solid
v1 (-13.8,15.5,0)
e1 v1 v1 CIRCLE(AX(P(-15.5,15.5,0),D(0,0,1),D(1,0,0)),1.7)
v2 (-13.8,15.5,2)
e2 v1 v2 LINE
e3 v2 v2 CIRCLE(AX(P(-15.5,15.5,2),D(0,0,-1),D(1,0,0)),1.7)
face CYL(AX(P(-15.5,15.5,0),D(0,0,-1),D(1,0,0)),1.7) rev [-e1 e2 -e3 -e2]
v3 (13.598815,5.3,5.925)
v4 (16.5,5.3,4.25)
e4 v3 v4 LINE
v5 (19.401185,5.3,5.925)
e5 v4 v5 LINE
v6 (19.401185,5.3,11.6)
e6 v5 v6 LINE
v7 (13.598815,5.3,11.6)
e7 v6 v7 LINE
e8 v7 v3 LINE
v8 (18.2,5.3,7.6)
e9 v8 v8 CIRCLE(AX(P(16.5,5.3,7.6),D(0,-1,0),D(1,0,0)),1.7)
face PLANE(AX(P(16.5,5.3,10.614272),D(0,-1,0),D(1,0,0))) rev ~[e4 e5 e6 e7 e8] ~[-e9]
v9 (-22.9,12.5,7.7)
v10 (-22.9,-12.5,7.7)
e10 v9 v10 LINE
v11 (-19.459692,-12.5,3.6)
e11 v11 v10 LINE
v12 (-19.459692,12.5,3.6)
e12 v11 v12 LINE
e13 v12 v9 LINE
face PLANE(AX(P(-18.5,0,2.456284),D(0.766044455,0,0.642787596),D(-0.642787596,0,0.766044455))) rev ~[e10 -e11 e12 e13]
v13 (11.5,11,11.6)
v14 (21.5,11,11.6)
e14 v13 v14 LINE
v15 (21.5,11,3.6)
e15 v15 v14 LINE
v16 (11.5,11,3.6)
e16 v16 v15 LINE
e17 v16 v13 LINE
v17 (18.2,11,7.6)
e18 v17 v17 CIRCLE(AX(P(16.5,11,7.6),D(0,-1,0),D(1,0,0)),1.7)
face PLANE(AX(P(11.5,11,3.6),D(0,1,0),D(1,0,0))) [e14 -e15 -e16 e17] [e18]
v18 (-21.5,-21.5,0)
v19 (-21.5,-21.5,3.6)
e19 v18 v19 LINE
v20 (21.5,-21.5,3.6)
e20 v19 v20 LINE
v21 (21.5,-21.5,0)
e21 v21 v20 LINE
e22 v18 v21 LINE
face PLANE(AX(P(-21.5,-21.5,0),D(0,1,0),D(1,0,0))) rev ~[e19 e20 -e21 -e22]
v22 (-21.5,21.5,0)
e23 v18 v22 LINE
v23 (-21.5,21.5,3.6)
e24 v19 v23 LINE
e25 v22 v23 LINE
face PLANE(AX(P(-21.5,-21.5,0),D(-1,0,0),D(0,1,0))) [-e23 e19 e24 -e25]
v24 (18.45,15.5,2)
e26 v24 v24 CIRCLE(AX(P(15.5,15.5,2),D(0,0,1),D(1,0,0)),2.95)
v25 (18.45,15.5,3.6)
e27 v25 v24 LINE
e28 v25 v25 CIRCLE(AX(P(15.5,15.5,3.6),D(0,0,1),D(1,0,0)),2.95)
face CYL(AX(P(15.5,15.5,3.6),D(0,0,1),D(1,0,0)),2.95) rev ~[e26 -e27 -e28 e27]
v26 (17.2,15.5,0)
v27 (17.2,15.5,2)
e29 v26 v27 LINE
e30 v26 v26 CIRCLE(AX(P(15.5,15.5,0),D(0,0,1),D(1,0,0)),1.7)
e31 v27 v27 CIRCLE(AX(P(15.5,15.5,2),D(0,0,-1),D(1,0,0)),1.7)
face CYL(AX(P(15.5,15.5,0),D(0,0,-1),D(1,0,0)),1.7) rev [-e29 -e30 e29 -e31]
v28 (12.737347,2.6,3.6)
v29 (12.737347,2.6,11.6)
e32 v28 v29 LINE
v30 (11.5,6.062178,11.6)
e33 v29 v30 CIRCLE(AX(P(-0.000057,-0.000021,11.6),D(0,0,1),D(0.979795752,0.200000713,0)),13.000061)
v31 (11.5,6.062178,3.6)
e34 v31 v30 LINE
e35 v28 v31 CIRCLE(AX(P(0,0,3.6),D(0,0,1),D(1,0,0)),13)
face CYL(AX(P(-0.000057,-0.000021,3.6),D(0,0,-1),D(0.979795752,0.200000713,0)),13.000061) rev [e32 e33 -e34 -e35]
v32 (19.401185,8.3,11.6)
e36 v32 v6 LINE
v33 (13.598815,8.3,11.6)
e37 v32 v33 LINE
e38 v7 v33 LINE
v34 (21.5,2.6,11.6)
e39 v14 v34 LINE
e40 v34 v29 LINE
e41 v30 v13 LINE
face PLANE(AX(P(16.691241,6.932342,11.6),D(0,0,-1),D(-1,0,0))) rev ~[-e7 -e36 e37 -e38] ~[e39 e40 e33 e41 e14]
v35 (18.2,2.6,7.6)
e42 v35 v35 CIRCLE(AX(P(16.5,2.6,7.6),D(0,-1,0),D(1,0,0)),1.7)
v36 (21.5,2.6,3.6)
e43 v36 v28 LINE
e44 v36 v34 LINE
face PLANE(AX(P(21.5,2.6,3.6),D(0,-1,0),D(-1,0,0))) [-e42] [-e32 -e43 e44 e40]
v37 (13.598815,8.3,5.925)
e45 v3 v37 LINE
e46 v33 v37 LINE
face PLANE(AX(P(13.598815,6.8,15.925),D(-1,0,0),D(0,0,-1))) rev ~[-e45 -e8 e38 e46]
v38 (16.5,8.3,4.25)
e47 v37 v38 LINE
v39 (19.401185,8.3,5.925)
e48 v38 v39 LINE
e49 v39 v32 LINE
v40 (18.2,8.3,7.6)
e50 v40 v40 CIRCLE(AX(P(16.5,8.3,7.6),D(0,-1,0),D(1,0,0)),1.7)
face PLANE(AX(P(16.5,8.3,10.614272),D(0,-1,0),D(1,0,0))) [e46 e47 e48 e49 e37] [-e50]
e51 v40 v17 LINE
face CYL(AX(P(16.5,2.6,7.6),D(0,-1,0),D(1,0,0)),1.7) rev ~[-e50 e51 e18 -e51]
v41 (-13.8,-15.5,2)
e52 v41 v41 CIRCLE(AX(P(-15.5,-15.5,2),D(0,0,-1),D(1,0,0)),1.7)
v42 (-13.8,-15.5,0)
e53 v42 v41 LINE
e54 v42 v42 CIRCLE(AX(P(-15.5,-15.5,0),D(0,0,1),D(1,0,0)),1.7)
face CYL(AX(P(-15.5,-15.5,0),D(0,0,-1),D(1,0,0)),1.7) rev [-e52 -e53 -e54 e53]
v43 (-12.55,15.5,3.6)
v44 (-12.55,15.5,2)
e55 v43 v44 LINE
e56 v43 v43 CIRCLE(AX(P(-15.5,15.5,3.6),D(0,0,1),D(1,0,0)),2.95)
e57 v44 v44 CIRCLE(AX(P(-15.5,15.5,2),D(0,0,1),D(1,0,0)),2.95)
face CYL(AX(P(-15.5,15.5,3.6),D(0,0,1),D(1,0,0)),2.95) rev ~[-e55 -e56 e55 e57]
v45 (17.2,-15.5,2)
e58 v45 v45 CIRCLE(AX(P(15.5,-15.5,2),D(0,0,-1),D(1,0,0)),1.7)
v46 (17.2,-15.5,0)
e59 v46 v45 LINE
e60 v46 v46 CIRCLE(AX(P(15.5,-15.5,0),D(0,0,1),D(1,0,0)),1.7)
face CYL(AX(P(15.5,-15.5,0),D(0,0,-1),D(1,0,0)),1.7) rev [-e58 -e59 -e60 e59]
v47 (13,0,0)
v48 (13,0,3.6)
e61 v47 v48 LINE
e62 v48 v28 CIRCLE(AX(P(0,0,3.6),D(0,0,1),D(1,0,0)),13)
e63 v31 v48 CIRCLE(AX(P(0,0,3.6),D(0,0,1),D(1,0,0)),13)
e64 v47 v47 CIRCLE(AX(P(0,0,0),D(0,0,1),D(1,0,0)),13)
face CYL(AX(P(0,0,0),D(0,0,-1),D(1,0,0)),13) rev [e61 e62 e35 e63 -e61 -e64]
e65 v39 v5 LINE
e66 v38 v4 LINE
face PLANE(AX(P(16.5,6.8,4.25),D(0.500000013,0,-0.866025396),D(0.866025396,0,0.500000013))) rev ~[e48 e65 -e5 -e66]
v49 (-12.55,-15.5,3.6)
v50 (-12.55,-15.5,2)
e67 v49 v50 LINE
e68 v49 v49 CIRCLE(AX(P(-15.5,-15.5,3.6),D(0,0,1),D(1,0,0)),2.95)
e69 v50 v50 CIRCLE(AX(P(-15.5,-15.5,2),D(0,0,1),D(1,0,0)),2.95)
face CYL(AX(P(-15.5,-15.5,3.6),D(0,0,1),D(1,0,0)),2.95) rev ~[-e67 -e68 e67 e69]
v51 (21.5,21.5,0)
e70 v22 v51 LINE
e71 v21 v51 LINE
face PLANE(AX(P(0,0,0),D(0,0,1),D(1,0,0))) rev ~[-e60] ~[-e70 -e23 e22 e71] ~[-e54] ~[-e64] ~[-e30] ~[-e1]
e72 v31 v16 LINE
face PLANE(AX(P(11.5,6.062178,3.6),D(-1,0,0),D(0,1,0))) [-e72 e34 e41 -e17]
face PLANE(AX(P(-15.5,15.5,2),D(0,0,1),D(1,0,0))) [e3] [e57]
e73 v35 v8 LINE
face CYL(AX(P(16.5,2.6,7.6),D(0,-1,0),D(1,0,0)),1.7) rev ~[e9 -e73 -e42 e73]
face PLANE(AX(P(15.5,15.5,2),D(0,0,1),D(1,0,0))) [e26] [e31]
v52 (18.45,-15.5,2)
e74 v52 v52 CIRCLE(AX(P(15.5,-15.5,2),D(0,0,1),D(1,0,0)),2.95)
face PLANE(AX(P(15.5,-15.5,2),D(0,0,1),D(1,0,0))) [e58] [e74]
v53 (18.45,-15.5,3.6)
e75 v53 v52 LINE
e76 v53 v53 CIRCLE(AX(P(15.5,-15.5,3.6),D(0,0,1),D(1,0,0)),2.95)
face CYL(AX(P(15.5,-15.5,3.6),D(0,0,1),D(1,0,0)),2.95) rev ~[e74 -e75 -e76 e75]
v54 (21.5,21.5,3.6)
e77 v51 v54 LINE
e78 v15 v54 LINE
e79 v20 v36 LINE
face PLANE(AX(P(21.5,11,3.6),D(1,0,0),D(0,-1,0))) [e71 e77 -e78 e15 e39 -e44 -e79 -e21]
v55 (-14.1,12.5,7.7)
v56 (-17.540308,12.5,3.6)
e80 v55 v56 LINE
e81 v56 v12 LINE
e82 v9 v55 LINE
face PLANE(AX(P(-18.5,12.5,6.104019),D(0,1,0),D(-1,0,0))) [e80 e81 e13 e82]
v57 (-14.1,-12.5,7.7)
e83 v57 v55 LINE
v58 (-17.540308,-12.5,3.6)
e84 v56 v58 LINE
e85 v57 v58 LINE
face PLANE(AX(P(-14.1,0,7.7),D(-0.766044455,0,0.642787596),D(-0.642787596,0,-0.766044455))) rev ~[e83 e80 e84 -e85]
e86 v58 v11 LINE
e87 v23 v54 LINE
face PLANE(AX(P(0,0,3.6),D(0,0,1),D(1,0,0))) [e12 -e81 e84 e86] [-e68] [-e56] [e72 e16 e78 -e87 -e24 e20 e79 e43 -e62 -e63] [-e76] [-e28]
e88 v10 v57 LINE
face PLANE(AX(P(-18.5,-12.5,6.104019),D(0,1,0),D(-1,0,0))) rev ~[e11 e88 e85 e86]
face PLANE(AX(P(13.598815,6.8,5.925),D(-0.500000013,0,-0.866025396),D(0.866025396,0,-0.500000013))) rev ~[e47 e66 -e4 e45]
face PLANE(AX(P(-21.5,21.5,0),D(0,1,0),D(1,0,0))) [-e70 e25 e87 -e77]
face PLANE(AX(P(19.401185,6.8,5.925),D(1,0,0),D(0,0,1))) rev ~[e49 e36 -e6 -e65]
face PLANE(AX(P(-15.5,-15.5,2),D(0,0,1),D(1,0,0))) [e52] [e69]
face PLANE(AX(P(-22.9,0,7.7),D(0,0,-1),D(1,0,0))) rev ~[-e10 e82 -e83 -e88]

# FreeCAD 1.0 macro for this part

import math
import FreeCAD as App
import Part
import Sketcher
from FreeCAD import Vector
Q = App.Units.Quantity


def add_polygon(sketch, points):
    """Adds a closed chain of lines whose ends are joined by coincident constraints."""
    first, n = sketch.GeometryCount, len(points)
    for a, b in zip(points, points[1:] + points[:1]):
        sketch.addGeometry(Part.LineSegment(App.Vector(*a, 0), App.Vector(*b, 0)), False)
    for i in range(n):
        sketch.addConstraint(Sketcher.Constraint("Coincident", first + i, 2, first + (i + 1) % n, 1))

doc = App.newDocument("Part")
body = doc.addObject("PartDesign::Body", "Body")

# Sketch on XY plane
sketch1 = body.newObject("Sketcher::SketchObject", "Sketch")
sketch1.AttachmentSupport = (doc.getObject("XY_Plane"), [""])
sketch1.MapMode = "FlatFace"
add_polygon(sketch1, [(-21.5, 21.5), (-21.5, -21.5), (21.5, -21.5), (21.5, 21.5)])  # lines 0-3
sketch1.addGeometry(Part.Circle(Vector(-15.5, -15.5, 0), Vector(0, 0, 1), 1.7), False)  # 4
sketch1.addGeometry(Part.Circle(Vector(15.5, -15.5, 0), Vector(0, 0, 1), 1.7), False)  # 5
sketch1.addGeometry(Part.Circle(Vector(-15.5, 15.5, 0), Vector(0, 0, 1), 1.7), False)  # 6
sketch1.addGeometry(Part.Circle(Vector(0, 0, 0), Vector(0, 0, 1), 13), False)  # 7
sketch1.addGeometry(Part.Circle(Vector(15.5, 15.5, 0), Vector(0, 0, 1), 1.7), False)  # 8
sketch1.addConstraint([
    Sketcher.Constraint("Vertical", 0),
    Sketcher.Constraint("Horizontal", 1),
    Sketcher.Constraint("Vertical", 2),
    Sketcher.Constraint("Horizontal", 3),
    Sketcher.Constraint("Coincident", 7, 3, -1, 1),
    Sketcher.Constraint("Equal", 4, 5),
    Sketcher.Constraint("Equal", 5, 6),
    Sketcher.Constraint("Equal", 6, 8),
    Sketcher.Constraint("Symmetric", 5, 3, 6, 3, -1, 1),
    Sketcher.Constraint("Symmetric", 4, 3, 8, 3, -1, 1),
    Sketcher.Constraint("Symmetric", 0, 2, 2, 2, -1, 1),
    Sketcher.Constraint("Symmetric", 4, 3, 5, 3, -2),
    Sketcher.Constraint("Equal", 3, 0),
    Sketcher.Constraint("Diameter", 7, Q("26 mm")),
    Sketcher.Constraint("Diameter", 4, Q("3.4 mm")),
    Sketcher.Constraint("DistanceX", 1, 1, 1, 2, Q("43 mm")),
    Sketcher.Constraint("DistanceX", 4, 3, 5, 3, Q("31 mm")),
    Sketcher.Constraint("DistanceY", 4, 3, 6, 3, Q("31 mm")),
])
pad1 = body.newObject("PartDesign::Pad", "Pad")
pad1.Profile = sketch1
pad1.Length = 3.6

# Sketch on XY plane
sketch2 = body.newObject("Sketcher::SketchObject", "Sketch001")
sketch2.AttachmentSupport = (doc.getObject("XY_Plane"), [""])
sketch2.MapMode = "FlatFace"
sketch2.AttachmentOffset = App.Placement(Vector(0, 0, 3.6), App.Rotation())
sketch2.addGeometry([
    Part.Circle(Vector(15.5, 15.5, 0), Vector(0, 0, 1), 3),
    Part.Circle(Vector(-15.5, 15.5, 0), Vector(0, 0, 1), 3),
    Part.Circle(Vector(-15.5, -15.5, 0), Vector(0, 0, 1), 3),
    Part.Circle(Vector(15.5, -15.5, 0), Vector(0, 0, 1), 3),
], False)
sketch2.addConstraint([
    Sketcher.Constraint("Equal", 0, 1),
    Sketcher.Constraint("Equal", 1, 2),
    Sketcher.Constraint("Equal", 2, 3),
    Sketcher.Constraint("Symmetric", 0, 3, 2, 3, -1, 1),
    Sketcher.Constraint("Symmetric", 1, 3, 3, 3, -1, 1),
    Sketcher.Constraint("Symmetric", 0, 3, 1, 3, -2),
    Sketcher.Constraint("Diameter", 0, Q("5.9 mm")),
    Sketcher.Constraint("DistanceX", 1, 3, 0, 3, Q("31 mm")),
    Sketcher.Constraint("DistanceY", 2, 3, 1, 3, Q("31 mm")),
])
pocket1 = body.newObject("PartDesign::Pocket", "Pocket")
pocket1.Profile = sketch2
pocket1.Length = 1.6

# Sketch on XY plane
sketch3 = body.newObject("Sketcher::SketchObject", "Sketch002")
sketch3.AttachmentSupport = (doc.getObject("XY_Plane"), [""])
sketch3.MapMode = "FlatFace"
sketch3.AttachmentOffset = App.Placement(Vector(0, 0, 3.6), App.Rotation())
sketch3.addGeometry([
    Part.ArcOfCircle(Part.Circle(Vector(0, 0, 0), Vector(0, 0, 1), 13), math.radians(11.54), math.radians(27.8)),  # 0
    Part.LineSegment(Vector(12.7, 2.6, 0), Vector(21.5, 2.6, 0)),  # 1
    Part.LineSegment(Vector(21.5, 2.6, 0), Vector(21.5, 11, 0)),  # 2
    Part.LineSegment(Vector(21.5, 11, 0), Vector(11.5, 11, 0)),  # 3
    Part.LineSegment(Vector(11.5, 11, 0), Vector(11.5, 6.1, 0)),  # 4
], False)
sketch3.addConstraint([
    Sketcher.Constraint("Coincident", 0, 1, 1, 1),
    Sketcher.Constraint("Coincident", 1, 2, 2, 1),
    Sketcher.Constraint("Coincident", 2, 2, 3, 1),
    Sketcher.Constraint("Coincident", 3, 2, 4, 1),
    Sketcher.Constraint("Coincident", 4, 2, 0, 2),
    Sketcher.Constraint("Horizontal", 1),
    Sketcher.Constraint("Vertical", 2),
    Sketcher.Constraint("Horizontal", 3),
    Sketcher.Constraint("Vertical", 4),
    Sketcher.Constraint("DistanceX", 3, 2, 3, 1, Q("10 mm")),
    Sketcher.Constraint("DistanceY", 2, 1, 2, 2, Q("8.4 mm")),
    Sketcher.Constraint("DistanceY", -1, 1, 2, 2, Q("11 mm")),
    Sketcher.Constraint("DistanceX", -1, 1, 1, 2, Q("21.5 mm")),
    Sketcher.Constraint("Radius", 0, Q("13.000061 mm")),
    Sketcher.Constraint("DistanceY", 4, 2, 4, 1, Q("4.937822 mm")),
    Sketcher.Constraint("DistanceY", 0, 3, 4, 2, Q("6.062199 mm")),
])
pad2 = body.newObject("PartDesign::Pad", "Pad001")
pad2.Profile = sketch3
pad2.Length = 8

# Sketch on XZ plane
sketch4 = body.newObject("Sketcher::SketchObject", "Sketch003")
sketch4.AttachmentSupport = (doc.getObject("XZ_Plane"), [""])
sketch4.MapMode = "FlatFace"
sketch4.AttachmentOffset = App.Placement(Vector(0, 0, -2.6), App.Rotation())
sketch4.addGeometry(Part.Circle(Vector(16.5, 7.6, 0), Vector(0, 0, 1), 1.7), False)
sketch4.addConstraint([
    Sketcher.Constraint("Diameter", 0, Q("3.4 mm")),
    Sketcher.Constraint("DistanceX", -1, 1, 0, 3, Q("16.5 mm")),
    Sketcher.Constraint("DistanceY", -1, 1, 0, 3, Q("7.6 mm")),
])
pocket2 = body.newObject("PartDesign::Pocket", "Pocket001")
pocket2.Profile = sketch4
pocket2.Type = "ThroughAll"

# Sketch on XZ plane
sketch5 = body.newObject("Sketcher::SketchObject", "Sketch004")
sketch5.AttachmentSupport = (doc.getObject("XZ_Plane"), [""])
sketch5.MapMode = "FlatFace"
sketch5.AttachmentOffset = App.Placement(Vector(0, 0, -6.8), App.Rotation())
add_polygon(sketch5, [(13.6, 5.9), (16.5, 4.2), (19.4, 5.9), (19.4, 15.9), (13.6, 15.9)])  # lines 0-4
sketch5.addConstraint([
    Sketcher.Constraint("Vertical", 2),
    Sketcher.Constraint("Horizontal", 3),
    Sketcher.Constraint("Vertical", 4),
    Sketcher.Constraint("Horizontal", 1, 2, 4, 2),
    Sketcher.Constraint("Equal", 0, 1),
    Sketcher.Constraint("DistanceY", 2, 1, 2, 2, Q("10 mm")),
    Sketcher.Constraint("Angle", 0, Q("-30.000001 deg")),
    Sketcher.Constraint("DistanceX", -1, 1, 0, 2, Q("16.5 mm")),
    Sketcher.Constraint("Distance", 0, Q("3.35 mm")),
    Sketcher.Constraint("DistanceY", -1, 1, 0, 2, Q("4.25 mm")),
])
pocket3 = body.newObject("PartDesign::Pocket", "Pocket002")
pocket3.Profile = sketch5
pocket3.Length = 3
pocket3.Midplane = True

# Sketch on XZ plane
sketch6 = body.newObject("Sketcher::SketchObject", "Sketch005")
sketch6.AttachmentSupport = (doc.getObject("XZ_Plane"), [""])
sketch6.MapMode = "FlatFace"
add_polygon(sketch6, [(-14, 8), (-23, 8), (-18, 2)])  # lines 0-2
sketch6.addConstraint([
    Sketcher.Constraint("Horizontal", 0),
    Sketcher.Constraint("Equal", 1, 2),
    Sketcher.Constraint("Angle", 1, Q("-50.000001 deg")),
    Sketcher.Constraint("DistanceX", 0, 2, 0, 1, Q("8.8 mm")),
    Sketcher.Constraint("DistanceX", 0, 2, -1, 1, Q("22.9 mm")),
    Sketcher.Constraint("DistanceY", -1, 1, 0, 2, Q("7.7 mm")),
])
pad3 = body.newObject("PartDesign::Pad", "Pad002")
pad3.Profile = sketch6
pad3.Length = 25
pad3.Midplane = True

doc.recompute()
